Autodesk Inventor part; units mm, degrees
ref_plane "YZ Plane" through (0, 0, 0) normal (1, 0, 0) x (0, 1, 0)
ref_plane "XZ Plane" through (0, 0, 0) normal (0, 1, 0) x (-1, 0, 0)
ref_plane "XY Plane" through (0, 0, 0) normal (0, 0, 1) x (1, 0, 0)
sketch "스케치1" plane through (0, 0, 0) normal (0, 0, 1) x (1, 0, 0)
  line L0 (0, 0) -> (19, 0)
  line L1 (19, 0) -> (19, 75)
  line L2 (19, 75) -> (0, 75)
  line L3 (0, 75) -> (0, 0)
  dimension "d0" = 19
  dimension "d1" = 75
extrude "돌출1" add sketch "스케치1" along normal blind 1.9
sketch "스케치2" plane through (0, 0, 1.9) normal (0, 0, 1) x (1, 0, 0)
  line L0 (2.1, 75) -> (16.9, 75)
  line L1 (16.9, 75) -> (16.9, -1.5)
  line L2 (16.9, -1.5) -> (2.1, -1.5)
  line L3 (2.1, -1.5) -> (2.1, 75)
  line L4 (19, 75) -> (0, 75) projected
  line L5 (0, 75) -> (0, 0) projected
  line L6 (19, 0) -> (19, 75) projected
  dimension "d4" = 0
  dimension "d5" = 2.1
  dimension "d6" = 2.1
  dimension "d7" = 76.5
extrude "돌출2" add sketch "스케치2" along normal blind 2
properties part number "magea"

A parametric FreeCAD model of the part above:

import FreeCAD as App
import Part
import Sketcher
from FreeCAD import Vector
Q = App.Units.Quantity


def add_polygon(sketch, points):
    """Adds a closed chain of lines whose ends are joined by coincident constraints."""
    first, n = sketch.GeometryCount, len(points)
    for a, b in zip(points, points[1:] + points[:1]):
        sketch.addGeometry(Part.LineSegment(App.Vector(*a, 0), App.Vector(*b, 0)), False)
    for i in range(n):
        sketch.addConstraint(Sketcher.Constraint("Coincident", first + i, 2, first + (i + 1) % n, 1))

doc = App.newDocument("Part")
body = doc.addObject("PartDesign::Body", "Body")

sketch1 = body.newObject("Sketcher::SketchObject", "Sketch")
sketch1.AttachmentSupport = (doc.getObject("XY_Plane"), [""])
sketch1.MapMode = "FlatFace"
add_polygon(sketch1, [(0, 75), (0, 0), (19, 0), (19, 75)])
sketch1.addConstraint([
    Sketcher.Constraint("Vertical", 0),
    Sketcher.Constraint("Horizontal", 1),
    Sketcher.Constraint("Vertical", 2),
    Sketcher.Constraint("Horizontal", 3),
    Sketcher.Constraint("Coincident", 0, 2, -1, 1),
    Sketcher.Constraint("DistanceX", 1, 1, 1, 2, Q("19 mm")),
    Sketcher.Constraint("DistanceY", 0, 2, 0, 1, Q("75 mm")),
])
pad1 = body.newObject("PartDesign::Pad", "Pad")
pad1.Profile = sketch1
pad1.Length = 1.9

sketch2 = body.newObject("Sketcher::SketchObject", "Sketch001")
sketch2.AttachmentSupport = (doc.getObject("XY_Plane"), [""])
sketch2.MapMode = "FlatFace"
sketch2.AttachmentOffset = App.Placement(Vector(0, 0, 1.9), App.Rotation())
add_polygon(sketch2, [(17, 75), (2, 75), (2, -2), (17, -2)])
sketch2.addConstraint([
    Sketcher.Constraint("Horizontal", 0),
    Sketcher.Constraint("Vertical", 1),
    Sketcher.Constraint("Horizontal", 2),
    Sketcher.Constraint("Vertical", 3),
    Sketcher.Constraint("DistanceY", 1, 2, 1, 1, Q("76.5 mm")),
    Sketcher.Constraint("DistanceX", -1, 1, 0, 2, Q("2.1 mm")),
    Sketcher.Constraint("DistanceX", 0, 2, 0, 1, Q("14.8 mm")),
    Sketcher.Constraint("DistanceY", -1, 1, 0, 2, Q("75 mm")),
])
pad2 = body.newObject("PartDesign::Pad", "Pad001")
pad2.Profile = sketch2
pad2.Length = 2

doc.recompute()
